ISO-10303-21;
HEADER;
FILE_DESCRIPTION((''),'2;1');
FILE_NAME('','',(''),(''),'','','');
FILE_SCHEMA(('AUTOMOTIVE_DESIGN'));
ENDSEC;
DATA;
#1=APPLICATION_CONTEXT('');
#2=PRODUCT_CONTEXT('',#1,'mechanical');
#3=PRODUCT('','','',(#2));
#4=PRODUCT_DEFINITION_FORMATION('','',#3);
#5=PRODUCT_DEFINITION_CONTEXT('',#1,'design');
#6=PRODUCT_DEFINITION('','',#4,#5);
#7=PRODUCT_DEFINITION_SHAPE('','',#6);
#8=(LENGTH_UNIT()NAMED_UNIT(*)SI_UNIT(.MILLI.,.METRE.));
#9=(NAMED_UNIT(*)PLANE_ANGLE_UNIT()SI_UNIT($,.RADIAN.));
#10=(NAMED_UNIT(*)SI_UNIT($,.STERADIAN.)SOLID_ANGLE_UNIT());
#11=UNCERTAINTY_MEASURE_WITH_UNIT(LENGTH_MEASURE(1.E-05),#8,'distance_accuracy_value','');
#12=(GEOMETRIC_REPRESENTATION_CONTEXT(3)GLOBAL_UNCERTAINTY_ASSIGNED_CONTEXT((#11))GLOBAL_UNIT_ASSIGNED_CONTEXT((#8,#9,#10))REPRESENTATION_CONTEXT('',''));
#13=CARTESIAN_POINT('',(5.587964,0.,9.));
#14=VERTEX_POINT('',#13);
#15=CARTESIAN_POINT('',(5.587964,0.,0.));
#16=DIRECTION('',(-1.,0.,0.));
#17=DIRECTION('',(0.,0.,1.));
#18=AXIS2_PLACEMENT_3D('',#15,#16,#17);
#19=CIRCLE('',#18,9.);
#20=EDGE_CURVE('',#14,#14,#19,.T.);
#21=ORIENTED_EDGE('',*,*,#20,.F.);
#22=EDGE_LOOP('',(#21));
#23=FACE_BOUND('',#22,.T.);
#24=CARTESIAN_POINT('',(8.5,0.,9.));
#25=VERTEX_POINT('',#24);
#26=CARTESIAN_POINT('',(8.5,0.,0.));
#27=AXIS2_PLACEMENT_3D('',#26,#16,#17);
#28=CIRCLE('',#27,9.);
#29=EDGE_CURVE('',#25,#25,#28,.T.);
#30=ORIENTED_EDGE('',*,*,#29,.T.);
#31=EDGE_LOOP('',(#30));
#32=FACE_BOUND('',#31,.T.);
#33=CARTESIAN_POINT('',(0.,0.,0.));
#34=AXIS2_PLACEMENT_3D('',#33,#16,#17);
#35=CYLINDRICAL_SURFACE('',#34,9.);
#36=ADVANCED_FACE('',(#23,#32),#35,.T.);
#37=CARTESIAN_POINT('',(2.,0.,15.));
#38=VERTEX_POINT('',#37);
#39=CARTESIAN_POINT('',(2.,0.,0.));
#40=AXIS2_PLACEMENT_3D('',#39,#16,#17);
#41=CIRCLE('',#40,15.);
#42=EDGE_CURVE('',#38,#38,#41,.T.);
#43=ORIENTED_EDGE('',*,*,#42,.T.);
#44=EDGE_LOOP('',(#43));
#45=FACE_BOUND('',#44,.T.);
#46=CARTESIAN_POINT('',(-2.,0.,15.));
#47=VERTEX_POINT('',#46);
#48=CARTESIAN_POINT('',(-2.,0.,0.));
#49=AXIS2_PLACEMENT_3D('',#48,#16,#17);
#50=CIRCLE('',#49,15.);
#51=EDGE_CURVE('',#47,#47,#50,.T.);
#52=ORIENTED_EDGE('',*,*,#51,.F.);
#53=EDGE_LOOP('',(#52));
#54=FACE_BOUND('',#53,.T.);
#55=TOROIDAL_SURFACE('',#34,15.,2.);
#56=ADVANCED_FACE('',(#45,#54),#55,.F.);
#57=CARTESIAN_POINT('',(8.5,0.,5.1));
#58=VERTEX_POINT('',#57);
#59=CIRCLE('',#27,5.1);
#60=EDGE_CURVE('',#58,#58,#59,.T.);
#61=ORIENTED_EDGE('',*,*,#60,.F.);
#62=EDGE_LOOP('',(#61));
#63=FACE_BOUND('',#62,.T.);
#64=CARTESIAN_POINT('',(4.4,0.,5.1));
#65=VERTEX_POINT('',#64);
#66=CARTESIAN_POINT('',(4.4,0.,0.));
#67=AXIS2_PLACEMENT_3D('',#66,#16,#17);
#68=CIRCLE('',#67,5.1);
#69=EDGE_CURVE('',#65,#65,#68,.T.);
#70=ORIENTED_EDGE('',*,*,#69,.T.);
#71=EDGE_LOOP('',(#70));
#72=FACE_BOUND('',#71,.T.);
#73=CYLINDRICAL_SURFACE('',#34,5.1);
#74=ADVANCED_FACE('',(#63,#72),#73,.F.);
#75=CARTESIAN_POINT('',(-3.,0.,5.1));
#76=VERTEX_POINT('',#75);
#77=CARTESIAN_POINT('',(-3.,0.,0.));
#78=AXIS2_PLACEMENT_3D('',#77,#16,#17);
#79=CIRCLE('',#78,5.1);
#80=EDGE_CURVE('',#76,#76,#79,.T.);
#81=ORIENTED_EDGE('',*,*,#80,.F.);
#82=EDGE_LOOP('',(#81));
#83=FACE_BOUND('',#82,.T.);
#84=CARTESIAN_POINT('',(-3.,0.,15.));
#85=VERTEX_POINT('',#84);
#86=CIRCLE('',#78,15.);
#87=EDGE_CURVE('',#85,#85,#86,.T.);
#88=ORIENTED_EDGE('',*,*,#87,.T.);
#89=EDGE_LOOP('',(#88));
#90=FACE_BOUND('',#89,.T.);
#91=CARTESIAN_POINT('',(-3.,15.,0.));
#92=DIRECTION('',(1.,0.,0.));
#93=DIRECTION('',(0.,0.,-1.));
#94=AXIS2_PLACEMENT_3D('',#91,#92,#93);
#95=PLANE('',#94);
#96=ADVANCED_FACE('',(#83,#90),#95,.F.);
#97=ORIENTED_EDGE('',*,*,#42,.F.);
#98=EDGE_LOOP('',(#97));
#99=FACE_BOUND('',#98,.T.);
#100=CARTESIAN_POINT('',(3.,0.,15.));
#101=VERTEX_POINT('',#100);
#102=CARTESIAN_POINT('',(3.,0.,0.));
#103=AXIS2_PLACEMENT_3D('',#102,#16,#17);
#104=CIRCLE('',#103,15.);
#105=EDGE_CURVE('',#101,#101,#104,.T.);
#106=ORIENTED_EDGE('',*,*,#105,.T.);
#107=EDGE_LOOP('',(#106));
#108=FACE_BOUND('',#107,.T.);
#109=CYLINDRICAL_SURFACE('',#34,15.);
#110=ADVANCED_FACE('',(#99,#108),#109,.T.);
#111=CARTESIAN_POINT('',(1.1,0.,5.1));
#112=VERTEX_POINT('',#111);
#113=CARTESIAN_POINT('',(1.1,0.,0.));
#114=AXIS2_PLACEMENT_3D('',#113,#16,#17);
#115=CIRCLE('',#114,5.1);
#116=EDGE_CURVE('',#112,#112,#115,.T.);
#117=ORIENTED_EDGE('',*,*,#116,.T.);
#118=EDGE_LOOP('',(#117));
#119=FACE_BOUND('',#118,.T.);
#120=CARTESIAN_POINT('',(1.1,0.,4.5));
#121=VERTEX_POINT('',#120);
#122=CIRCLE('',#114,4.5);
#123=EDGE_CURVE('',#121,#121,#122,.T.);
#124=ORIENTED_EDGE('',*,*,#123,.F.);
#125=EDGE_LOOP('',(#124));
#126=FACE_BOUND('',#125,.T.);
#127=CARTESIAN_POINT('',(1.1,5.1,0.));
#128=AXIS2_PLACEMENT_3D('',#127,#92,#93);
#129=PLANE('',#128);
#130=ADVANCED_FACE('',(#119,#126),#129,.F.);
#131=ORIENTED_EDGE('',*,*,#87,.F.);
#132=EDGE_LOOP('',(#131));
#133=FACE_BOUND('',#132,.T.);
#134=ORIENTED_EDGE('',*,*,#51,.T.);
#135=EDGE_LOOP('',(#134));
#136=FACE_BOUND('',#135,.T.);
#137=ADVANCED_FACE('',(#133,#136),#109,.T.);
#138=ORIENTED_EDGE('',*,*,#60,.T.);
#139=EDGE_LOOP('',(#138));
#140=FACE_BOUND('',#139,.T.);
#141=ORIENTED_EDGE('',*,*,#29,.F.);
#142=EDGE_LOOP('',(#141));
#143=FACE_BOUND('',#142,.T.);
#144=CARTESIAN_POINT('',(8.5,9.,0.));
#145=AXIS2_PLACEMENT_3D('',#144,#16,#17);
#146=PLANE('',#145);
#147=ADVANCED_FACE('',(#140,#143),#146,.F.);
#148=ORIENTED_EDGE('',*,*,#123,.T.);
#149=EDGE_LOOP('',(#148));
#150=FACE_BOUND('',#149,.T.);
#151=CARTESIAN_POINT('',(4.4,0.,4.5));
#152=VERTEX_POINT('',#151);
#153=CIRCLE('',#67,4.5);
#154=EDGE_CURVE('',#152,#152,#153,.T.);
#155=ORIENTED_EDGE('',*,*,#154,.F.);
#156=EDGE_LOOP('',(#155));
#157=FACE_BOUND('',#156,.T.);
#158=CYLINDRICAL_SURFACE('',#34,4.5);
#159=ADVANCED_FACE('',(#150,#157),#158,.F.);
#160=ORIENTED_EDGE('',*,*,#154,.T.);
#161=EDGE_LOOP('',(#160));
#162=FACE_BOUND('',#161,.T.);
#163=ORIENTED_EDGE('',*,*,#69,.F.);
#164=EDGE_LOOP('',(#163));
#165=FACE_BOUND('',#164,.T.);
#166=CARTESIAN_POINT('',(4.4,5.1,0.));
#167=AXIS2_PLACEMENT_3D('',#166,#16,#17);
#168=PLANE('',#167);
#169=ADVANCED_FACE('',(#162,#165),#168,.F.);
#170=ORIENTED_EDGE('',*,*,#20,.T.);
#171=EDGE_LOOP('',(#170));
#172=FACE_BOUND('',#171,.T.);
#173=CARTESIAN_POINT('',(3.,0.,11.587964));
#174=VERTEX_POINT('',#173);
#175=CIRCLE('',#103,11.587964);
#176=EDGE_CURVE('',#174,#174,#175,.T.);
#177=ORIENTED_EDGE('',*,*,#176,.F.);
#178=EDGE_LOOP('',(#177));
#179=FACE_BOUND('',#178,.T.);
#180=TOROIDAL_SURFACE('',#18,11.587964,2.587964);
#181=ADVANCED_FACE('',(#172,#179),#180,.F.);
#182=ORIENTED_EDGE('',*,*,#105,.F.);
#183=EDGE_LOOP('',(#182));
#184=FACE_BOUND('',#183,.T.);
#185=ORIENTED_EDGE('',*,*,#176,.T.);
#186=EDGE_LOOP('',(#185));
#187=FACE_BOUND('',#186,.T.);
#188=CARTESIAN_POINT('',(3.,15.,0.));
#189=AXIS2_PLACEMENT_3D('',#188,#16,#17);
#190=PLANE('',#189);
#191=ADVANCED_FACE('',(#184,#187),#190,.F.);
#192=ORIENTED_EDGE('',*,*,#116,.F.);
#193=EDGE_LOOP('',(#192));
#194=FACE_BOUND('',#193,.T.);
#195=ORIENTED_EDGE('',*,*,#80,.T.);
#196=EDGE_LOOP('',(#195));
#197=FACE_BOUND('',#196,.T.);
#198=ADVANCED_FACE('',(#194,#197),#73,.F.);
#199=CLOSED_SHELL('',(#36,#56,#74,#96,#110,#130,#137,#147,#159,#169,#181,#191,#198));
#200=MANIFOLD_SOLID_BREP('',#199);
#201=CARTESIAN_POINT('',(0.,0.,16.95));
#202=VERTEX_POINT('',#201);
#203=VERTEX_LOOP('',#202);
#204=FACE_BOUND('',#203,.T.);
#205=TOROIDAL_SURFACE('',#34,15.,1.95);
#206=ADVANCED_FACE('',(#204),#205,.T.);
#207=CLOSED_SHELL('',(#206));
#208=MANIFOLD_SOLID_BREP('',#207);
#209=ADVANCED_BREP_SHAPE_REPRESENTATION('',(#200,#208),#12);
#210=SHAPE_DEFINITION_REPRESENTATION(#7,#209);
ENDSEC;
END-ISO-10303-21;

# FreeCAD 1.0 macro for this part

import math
import FreeCAD as App
import Part
import Sketcher
from FreeCAD import Vector
Q = App.Units.Quantity

doc = App.newDocument("Part")
body = doc.addObject("PartDesign::Body", "Body")
body.AllowCompound = True

# Sketch on XY plane
sketch1 = doc.addObject("Sketcher::SketchObject", "Sketch")
body.addObject(sketch1)
sketch1.AttachmentSupport = (doc.XY_Plane, [""])
sketch1.MapMode = "FlatFace"
sketch1.addGeometry(Part.Circle(Vector(0, 15, 0), Vector(0, 0, 1), 1.9), False)
sketch1.addGeometry(Part.LineSegment(Vector(3, 15, 0), Vector(2, 15, 0)), False)
sketch1.addGeometry(Part.ArcOfCircle(Part.Circle(Vector(0, 15, 0), Vector(0, 0, 1), 2), math.radians(180), math.radians(360)), False)
sketch1.addGeometry(Part.LineSegment(Vector(-2, 15, 0), Vector(-3, 15, 0)), False)
sketch1.addGeometry(Part.LineSegment(Vector(-3, 15, 0), Vector(-3, 5.1, 0)), False)
sketch1.addGeometry(Part.LineSegment(Vector(-3, 5.1, 0), Vector(1.1, 5.1, 0)), False)
sketch1.addGeometry(Part.LineSegment(Vector(1.1, 5.1, 0), Vector(1.1, 4.5, 0)), False)
sketch1.addGeometry(Part.LineSegment(Vector(1.1, 4.5, 0), Vector(4.4, 4.5, 0)), False)
sketch1.addGeometry(Part.LineSegment(Vector(4.4, 4.5, 0), Vector(4.4, 5.1, 0)), False)
sketch1.addGeometry(Part.LineSegment(Vector(4.4, 5.1, 0), Vector(8.5, 5.1, 0)), False)
sketch1.addGeometry(Part.LineSegment(Vector(8.5, 5.1, 0), Vector(8.5, 9, 0)), False)
sketch1.addGeometry(Part.LineSegment(Vector(8.5, 9, 0), Vector(5.6, 9, 0)), False)
sketch1.addGeometry(Part.ArcOfCircle(Part.Circle(Vector(5.6, 11.6, 0), Vector(0, 0, 1), 2.6), math.radians(-180), math.radians(-90)), False)
sketch1.addGeometry(Part.LineSegment(Vector(3, 11.6, 0), Vector(3, 15, 0)), False)
sketch1.addConstraint(Sketcher.Constraint("Coincident", 1, 2, 2, 2))
sketch1.addConstraint(Sketcher.Constraint("Coincident", 2, 1, 3, 1))
sketch1.addConstraint(Sketcher.Constraint("Coincident", 3, 2, 4, 1))
sketch1.addConstraint(Sketcher.Constraint("Coincident", 4, 2, 5, 1))
sketch1.addConstraint(Sketcher.Constraint("Coincident", 5, 2, 6, 1))
sketch1.addConstraint(Sketcher.Constraint("Coincident", 6, 2, 7, 1))
sketch1.addConstraint(Sketcher.Constraint("Coincident", 7, 2, 8, 1))
sketch1.addConstraint(Sketcher.Constraint("Coincident", 8, 2, 9, 1))
sketch1.addConstraint(Sketcher.Constraint("Coincident", 9, 2, 10, 1))
sketch1.addConstraint(Sketcher.Constraint("Coincident", 10, 2, 11, 1))
sketch1.addConstraint(Sketcher.Constraint("Tangent", 11, 2, 12, 2))
sketch1.addConstraint(Sketcher.Constraint("Tangent", 12, 1, 13, 1))
sketch1.addConstraint(Sketcher.Constraint("Coincident", 13, 2, 1, 1))
sketch1.addConstraint(Sketcher.Constraint("Horizontal", 1))
sketch1.addConstraint(Sketcher.Constraint("Horizontal", 3))
sketch1.addConstraint(Sketcher.Constraint("Vertical", 4))
sketch1.addConstraint(Sketcher.Constraint("Horizontal", 5))
sketch1.addConstraint(Sketcher.Constraint("Vertical", 6))
sketch1.addConstraint(Sketcher.Constraint("Horizontal", 7))
sketch1.addConstraint(Sketcher.Constraint("Vertical", 8))
sketch1.addConstraint(Sketcher.Constraint("Horizontal", 9))
sketch1.addConstraint(Sketcher.Constraint("Vertical", 10))
sketch1.addConstraint(Sketcher.Constraint("Horizontal", 11))
sketch1.addConstraint(Sketcher.Constraint("Vertical", 13))
sketch1.addConstraint(Sketcher.Constraint("Coincident", 2, 3, 0, 3))
sketch1.addConstraint(Sketcher.Constraint("Symmetric", 1, 2, 2, 1, -2))
sketch1.addConstraint(Sketcher.Constraint("Horizontal", 2, 3, 1, 2))
sketch1.addConstraint(Sketcher.Constraint("Horizontal", 5, 2, 8, 2))
sketch1.addConstraint(Sketcher.Constraint("Equal", 1, 3))
sketch1.addConstraint(Sketcher.Constraint("Equal", 5, 9))
sketch1.addConstraint(Sketcher.Constraint("Radius", 2, Q("2 mm")))
sketch1.addConstraint(Sketcher.Constraint("Diameter", 0, Q("3.9 mm")))
sketch1.addConstraint(Sketcher.Constraint("DistanceX", 1, 2, 1, 1, Q("1 mm")))
sketch1.addConstraint(Sketcher.Constraint("DistanceX", 5, 1, 5, 2, Q("4.1 mm")))
sketch1.addConstraint(Sketcher.Constraint("DistanceX", 7, 1, 7, 2, Q("3.3 mm")))
sketch1.addConstraint(Sketcher.Constraint("DistanceY", 4, 2, 4, 1, Q("9.9 mm")))
sketch1.addConstraint(Sketcher.Constraint("DistanceY", 6, 2, 6, 1, Q("0.6 mm")))
sketch1.addConstraint(Sketcher.Constraint("DistanceY", 10, 1, 10, 2, Q("3.9 mm")))
sketch1.addConstraint(Sketcher.Constraint("DistanceY", -1, 1, 0, 3, Q("15 mm")))
sketch1.addConstraint(Sketcher.Constraint("Radius", 12, Q("2.587964 mm")))
revolution = doc.addObject("PartDesign::Revolution", "Revolution")
body.addObject(revolution)
revolution.Profile = sketch1
revolution.ReferenceAxis = (sketch1, ["H_Axis"])
revolution.Angle = 360

doc.recompute()
